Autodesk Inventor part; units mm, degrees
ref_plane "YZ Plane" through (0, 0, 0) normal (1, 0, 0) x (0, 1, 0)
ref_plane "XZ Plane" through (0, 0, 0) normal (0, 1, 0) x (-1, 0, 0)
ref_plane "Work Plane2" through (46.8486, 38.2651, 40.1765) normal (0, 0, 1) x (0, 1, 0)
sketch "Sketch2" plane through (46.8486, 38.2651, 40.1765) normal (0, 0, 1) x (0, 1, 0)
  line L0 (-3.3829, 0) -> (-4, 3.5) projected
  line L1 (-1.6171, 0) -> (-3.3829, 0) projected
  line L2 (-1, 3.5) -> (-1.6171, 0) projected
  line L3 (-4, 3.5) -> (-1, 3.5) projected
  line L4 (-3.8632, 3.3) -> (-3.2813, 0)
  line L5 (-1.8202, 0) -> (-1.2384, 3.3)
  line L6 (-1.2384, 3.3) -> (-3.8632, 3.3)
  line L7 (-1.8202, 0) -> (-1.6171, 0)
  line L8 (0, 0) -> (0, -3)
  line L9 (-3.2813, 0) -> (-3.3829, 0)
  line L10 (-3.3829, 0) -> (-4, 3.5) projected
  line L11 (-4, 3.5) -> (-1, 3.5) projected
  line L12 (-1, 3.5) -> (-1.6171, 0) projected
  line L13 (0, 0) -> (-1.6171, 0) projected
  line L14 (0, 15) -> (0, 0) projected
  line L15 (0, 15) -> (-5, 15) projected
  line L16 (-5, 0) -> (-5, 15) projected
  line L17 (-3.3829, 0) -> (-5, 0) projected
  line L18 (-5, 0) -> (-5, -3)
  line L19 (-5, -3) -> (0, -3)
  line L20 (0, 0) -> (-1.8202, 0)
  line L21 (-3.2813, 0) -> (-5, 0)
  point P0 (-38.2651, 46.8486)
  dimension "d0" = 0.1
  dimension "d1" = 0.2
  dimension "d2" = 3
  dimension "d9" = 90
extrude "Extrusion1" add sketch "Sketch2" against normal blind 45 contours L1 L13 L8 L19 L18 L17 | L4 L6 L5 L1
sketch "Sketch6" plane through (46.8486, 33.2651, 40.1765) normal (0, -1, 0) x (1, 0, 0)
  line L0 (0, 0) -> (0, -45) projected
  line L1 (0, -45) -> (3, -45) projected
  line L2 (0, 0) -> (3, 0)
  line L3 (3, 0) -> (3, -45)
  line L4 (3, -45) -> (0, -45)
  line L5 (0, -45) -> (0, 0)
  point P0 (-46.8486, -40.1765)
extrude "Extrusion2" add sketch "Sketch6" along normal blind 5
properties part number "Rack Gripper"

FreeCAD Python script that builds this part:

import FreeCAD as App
import Part
import Sketcher
from FreeCAD import Vector
Q = App.Units.Quantity


def add_polygon(sketch, points):
    """Adds a closed chain of lines whose ends are joined by coincident constraints."""
    first, n = sketch.GeometryCount, len(points)
    for a, b in zip(points, points[1:] + points[:1]):
        sketch.addGeometry(Part.LineSegment(App.Vector(*a, 0), App.Vector(*b, 0)), False)
    for i in range(n):
        sketch.addConstraint(Sketcher.Constraint("Coincident", first + i, 2, first + (i + 1) % n, 1))

doc = App.newDocument("Part")
body = doc.addObject("PartDesign::Body", "Body")

# Sketch on XY plane
sketch1 = doc.addObject("Sketcher::SketchObject", "Sketch")
body.addObject(sketch1)
sketch1.AttachmentSupport = (doc.XY_Plane, [""])
sketch1.MapMode = "FlatFace"
sketch1.AttachmentOffset = App.Placement(Vector(0, 0, 40.1765), App.Rotation())
add_polygon(sketch1, [(46.8486, 34.9838), (46.8486, 33.2651), (49.8486, 33.2651), (49.8486, 38.2651), (46.8486, 38.2651), (46.8486, 36.4449), (43.5486, 37.0267), (43.5486, 34.4019)])  # lines 0-7
sketch1.addConstraint([
    Sketcher.Constraint("Vertical", 0),
    Sketcher.Constraint("Horizontal", 1),
    Sketcher.Constraint("Vertical", 2),
    Sketcher.Constraint("Horizontal", 3),
    Sketcher.Constraint("Vertical", 4),
    Sketcher.Constraint("Vertical", 6),
    Sketcher.Constraint("Vertical", 0, 2, 3, 2),
    Sketcher.Constraint("Equal", 5, 7),
    Sketcher.Constraint("DistanceX", 1, 1, 1, 2, Q("3 mm")),
    Sketcher.Constraint("DistanceY", 2, 1, 2, 2, Q("5 mm")),
    Sketcher.Constraint("Angle", 7, Q("10.0004 deg")),
    Sketcher.Constraint("DistanceX", 5, 2, 4, 2, Q("3.3 mm")),
    Sketcher.Constraint("DistanceY", 0, 2, 0, 1, Q("1.7187 mm")),
    Sketcher.Constraint("DistanceY", 4, 2, 4, 1, Q("1.8202 mm")),
    Sketcher.Constraint("DistanceY", -1, 1, 0, 2, Q("33.265 mm")),
    Sketcher.Constraint("DistanceX", -1, 1, 0, 2, Q("46.8486 mm")),
])
pad1 = doc.addObject("PartDesign::Pad", "Pad")
body.addObject(pad1)
pad1.Profile = sketch1
pad1.Length = 45
pad1.Reversed = True

# Sketch on XZ plane
sketch2 = doc.addObject("Sketcher::SketchObject", "Sketch001")
body.addObject(sketch2)
sketch2.AttachmentSupport = (doc.XZ_Plane, [""])
sketch2.MapMode = "FlatFace"
sketch2.AttachmentOffset = App.Placement(Vector(0, 0, -33.2651), App.Rotation())
add_polygon(sketch2, [(49.8486, 40.1765), (46.8486, 40.1765), (46.8486, -4.8235), (49.8486, -4.8235)])  # lines 0-3
sketch2.addConstraint([
    Sketcher.Constraint("Horizontal", 0),
    Sketcher.Constraint("Vertical", 1),
    Sketcher.Constraint("Horizontal", 2),
    Sketcher.Constraint("Vertical", 3),
    Sketcher.Constraint("DistanceX", 0, 2, 0, 1, Q("3 mm")),
    Sketcher.Constraint("DistanceY", 1, 2, 1, 1, Q("45 mm")),
    Sketcher.Constraint("DistanceX", -1, 1, 0, 2, Q("46.8486 mm")),
    Sketcher.Constraint("DistanceY", -1, 1, 0, 2, Q("40.1765 mm")),
])
pad2 = doc.addObject("PartDesign::Pad", "Pad001")
body.addObject(pad2)
pad2.Profile = sketch2
pad2.Length = 5

doc.recompute()
